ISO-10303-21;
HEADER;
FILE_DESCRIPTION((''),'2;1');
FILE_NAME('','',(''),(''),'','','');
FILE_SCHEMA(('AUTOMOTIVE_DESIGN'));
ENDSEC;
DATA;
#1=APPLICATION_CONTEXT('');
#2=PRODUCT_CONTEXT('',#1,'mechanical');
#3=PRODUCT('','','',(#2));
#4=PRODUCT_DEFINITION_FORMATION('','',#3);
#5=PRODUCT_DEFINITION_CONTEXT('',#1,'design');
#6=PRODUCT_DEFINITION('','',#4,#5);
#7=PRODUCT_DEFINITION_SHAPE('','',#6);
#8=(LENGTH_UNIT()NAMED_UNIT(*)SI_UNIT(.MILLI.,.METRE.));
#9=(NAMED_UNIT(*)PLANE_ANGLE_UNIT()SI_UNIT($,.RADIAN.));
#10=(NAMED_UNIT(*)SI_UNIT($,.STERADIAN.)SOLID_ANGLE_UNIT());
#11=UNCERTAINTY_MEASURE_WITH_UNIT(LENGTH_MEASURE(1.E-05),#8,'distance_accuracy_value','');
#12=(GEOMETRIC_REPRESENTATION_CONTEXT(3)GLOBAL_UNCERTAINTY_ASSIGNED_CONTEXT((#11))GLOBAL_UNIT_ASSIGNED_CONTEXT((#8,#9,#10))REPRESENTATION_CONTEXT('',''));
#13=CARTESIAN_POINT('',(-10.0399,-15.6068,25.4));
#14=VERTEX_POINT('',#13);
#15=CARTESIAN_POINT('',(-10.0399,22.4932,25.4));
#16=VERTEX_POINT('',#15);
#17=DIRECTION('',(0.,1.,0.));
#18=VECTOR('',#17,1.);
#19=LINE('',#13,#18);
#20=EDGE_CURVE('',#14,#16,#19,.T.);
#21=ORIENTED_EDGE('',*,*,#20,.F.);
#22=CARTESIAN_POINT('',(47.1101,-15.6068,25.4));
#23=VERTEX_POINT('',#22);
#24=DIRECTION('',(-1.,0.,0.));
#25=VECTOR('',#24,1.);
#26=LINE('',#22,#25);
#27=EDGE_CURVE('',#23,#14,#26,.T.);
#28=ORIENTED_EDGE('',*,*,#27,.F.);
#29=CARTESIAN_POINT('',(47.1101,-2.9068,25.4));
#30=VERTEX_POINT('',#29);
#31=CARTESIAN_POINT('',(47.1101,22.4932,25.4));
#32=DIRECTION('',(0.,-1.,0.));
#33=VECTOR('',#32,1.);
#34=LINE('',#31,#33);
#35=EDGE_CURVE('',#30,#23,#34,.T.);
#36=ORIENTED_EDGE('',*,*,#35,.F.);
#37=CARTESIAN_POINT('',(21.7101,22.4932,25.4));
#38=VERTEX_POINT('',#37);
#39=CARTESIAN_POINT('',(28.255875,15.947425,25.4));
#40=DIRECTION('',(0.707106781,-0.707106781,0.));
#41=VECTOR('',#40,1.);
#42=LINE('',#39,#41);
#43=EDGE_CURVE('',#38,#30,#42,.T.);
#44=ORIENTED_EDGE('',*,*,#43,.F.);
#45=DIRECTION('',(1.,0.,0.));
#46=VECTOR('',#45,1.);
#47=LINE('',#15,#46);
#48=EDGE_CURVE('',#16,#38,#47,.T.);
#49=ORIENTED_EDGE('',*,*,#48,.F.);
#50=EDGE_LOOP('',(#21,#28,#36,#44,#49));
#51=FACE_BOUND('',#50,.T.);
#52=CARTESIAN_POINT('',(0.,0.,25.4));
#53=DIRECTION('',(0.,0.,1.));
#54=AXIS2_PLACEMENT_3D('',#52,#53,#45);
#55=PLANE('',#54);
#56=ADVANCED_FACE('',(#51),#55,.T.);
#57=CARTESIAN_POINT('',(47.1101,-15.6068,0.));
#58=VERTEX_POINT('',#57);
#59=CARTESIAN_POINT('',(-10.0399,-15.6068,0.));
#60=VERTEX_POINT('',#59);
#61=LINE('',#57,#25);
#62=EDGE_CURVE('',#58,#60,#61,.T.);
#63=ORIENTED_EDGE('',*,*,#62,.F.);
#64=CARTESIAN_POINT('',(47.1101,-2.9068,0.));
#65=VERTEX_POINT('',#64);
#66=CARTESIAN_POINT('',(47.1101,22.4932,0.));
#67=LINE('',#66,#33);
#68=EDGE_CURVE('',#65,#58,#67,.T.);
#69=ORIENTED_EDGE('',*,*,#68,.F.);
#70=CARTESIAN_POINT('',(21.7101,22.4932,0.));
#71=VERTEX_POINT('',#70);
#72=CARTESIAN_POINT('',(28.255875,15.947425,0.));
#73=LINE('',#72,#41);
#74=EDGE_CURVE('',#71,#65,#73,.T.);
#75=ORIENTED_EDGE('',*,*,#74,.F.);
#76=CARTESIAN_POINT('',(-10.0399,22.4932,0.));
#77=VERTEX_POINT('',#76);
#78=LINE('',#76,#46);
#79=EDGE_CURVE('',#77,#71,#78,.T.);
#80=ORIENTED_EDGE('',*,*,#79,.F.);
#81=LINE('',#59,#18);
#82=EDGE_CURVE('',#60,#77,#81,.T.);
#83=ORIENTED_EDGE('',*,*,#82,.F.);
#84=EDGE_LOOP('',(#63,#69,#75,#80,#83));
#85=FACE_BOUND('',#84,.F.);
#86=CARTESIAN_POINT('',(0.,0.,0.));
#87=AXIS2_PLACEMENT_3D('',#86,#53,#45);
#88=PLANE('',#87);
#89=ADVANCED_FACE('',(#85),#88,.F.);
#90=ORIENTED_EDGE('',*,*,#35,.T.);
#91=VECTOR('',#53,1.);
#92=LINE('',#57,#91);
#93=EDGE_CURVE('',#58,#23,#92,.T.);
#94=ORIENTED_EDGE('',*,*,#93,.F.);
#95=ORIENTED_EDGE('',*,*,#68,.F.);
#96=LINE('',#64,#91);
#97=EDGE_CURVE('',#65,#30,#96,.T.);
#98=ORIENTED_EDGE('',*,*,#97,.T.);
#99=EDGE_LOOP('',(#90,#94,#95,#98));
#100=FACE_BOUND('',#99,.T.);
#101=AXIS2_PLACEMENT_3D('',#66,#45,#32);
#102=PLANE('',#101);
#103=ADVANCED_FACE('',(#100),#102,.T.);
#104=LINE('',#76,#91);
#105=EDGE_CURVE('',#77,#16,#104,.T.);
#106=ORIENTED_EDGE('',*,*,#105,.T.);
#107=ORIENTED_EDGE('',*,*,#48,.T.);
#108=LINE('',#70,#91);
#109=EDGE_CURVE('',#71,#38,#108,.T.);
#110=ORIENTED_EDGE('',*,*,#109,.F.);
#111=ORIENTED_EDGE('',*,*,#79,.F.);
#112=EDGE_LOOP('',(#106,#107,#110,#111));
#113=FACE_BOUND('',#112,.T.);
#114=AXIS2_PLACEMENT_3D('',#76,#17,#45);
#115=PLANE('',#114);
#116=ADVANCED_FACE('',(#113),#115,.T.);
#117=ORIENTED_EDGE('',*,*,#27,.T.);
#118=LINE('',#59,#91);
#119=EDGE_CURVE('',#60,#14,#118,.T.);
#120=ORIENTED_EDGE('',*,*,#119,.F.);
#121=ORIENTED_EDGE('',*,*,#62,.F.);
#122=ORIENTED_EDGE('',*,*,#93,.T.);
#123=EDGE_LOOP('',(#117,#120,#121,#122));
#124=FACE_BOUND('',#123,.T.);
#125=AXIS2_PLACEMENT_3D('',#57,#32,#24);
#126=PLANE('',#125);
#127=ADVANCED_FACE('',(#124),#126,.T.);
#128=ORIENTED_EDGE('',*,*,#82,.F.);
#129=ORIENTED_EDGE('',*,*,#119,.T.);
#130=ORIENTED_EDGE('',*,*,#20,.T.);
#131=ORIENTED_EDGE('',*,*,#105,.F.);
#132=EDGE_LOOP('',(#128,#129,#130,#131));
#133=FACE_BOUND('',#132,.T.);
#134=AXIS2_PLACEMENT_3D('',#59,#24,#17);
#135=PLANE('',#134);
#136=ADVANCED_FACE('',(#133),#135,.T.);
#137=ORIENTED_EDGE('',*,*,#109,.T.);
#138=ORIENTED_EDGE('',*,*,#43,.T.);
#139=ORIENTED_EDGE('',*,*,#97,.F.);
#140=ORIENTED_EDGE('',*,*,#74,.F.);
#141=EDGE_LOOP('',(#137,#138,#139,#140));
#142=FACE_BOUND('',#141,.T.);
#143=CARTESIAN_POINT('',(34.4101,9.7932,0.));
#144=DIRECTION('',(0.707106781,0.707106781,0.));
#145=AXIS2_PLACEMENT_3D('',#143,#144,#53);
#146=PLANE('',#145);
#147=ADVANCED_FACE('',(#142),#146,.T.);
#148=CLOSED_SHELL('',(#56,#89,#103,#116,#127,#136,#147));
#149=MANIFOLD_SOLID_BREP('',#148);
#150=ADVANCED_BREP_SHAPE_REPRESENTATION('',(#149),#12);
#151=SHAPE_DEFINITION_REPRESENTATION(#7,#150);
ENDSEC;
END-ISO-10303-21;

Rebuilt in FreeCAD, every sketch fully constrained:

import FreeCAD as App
import Part
import Sketcher
Q = App.Units.Quantity


def edges_at(feature, points):
    """Names of the edges that pass closest to the given points."""
    edges = feature.Shape.Edges
    near = lambda p: min(range(len(edges)), key=lambda i: edges[i].distToShape(Part.Vertex(*p))[0])
    return sorted({f"Edge{near(p) + 1}" for p in points})


def add_polygon(sketch, points):
    """Adds a closed chain of lines whose ends are joined by coincident constraints."""
    first, n = sketch.GeometryCount, len(points)
    for a, b in zip(points, points[1:] + points[:1]):
        sketch.addGeometry(Part.LineSegment(App.Vector(*a, 0), App.Vector(*b, 0)), False)
    for i in range(n):
        sketch.addConstraint(Sketcher.Constraint("Coincident", first + i, 2, first + (i + 1) % n, 1))

doc = App.newDocument("Part")
body = doc.addObject("PartDesign::Body", "Body")

sketch1 = body.newObject("Sketcher::SketchObject", "Sketch")
sketch1.AttachmentSupport = (doc.getObject("XY_Plane"), [""])
sketch1.MapMode = "FlatFace"
add_polygon(sketch1, [(47, 22), (-10, 22), (-10, -16), (47, -16)])
sketch1.addConstraint([
    Sketcher.Constraint("Horizontal", 0),
    Sketcher.Constraint("Vertical", 1),
    Sketcher.Constraint("Horizontal", 2),
    Sketcher.Constraint("Vertical", 3),
    Sketcher.Constraint("DistanceY", 1, 2, 1, 1, Q("1.5 in")),
    Sketcher.Constraint("DistanceX", 0, 2, 0, 1, Q("2.25 in")),
    Sketcher.Constraint("DistanceX", 0, 2, -1, 1, 10.04),
    Sketcher.Constraint("DistanceY", -1, 1, 0, 2, 22.4932),
])
pad1 = body.newObject("PartDesign::Pad", "Pad")
pad1.Profile = sketch1
pad1.Length = Q("1 in")
doc.recompute()

chamfer = body.newObject("PartDesign::Chamfer", "Chamfer")
chamfer.Base = (pad1, edges_at(pad1, [(47.11, 22.493, 12.7)]))
chamfer.Size = Q("1 in")

doc.recompute()
